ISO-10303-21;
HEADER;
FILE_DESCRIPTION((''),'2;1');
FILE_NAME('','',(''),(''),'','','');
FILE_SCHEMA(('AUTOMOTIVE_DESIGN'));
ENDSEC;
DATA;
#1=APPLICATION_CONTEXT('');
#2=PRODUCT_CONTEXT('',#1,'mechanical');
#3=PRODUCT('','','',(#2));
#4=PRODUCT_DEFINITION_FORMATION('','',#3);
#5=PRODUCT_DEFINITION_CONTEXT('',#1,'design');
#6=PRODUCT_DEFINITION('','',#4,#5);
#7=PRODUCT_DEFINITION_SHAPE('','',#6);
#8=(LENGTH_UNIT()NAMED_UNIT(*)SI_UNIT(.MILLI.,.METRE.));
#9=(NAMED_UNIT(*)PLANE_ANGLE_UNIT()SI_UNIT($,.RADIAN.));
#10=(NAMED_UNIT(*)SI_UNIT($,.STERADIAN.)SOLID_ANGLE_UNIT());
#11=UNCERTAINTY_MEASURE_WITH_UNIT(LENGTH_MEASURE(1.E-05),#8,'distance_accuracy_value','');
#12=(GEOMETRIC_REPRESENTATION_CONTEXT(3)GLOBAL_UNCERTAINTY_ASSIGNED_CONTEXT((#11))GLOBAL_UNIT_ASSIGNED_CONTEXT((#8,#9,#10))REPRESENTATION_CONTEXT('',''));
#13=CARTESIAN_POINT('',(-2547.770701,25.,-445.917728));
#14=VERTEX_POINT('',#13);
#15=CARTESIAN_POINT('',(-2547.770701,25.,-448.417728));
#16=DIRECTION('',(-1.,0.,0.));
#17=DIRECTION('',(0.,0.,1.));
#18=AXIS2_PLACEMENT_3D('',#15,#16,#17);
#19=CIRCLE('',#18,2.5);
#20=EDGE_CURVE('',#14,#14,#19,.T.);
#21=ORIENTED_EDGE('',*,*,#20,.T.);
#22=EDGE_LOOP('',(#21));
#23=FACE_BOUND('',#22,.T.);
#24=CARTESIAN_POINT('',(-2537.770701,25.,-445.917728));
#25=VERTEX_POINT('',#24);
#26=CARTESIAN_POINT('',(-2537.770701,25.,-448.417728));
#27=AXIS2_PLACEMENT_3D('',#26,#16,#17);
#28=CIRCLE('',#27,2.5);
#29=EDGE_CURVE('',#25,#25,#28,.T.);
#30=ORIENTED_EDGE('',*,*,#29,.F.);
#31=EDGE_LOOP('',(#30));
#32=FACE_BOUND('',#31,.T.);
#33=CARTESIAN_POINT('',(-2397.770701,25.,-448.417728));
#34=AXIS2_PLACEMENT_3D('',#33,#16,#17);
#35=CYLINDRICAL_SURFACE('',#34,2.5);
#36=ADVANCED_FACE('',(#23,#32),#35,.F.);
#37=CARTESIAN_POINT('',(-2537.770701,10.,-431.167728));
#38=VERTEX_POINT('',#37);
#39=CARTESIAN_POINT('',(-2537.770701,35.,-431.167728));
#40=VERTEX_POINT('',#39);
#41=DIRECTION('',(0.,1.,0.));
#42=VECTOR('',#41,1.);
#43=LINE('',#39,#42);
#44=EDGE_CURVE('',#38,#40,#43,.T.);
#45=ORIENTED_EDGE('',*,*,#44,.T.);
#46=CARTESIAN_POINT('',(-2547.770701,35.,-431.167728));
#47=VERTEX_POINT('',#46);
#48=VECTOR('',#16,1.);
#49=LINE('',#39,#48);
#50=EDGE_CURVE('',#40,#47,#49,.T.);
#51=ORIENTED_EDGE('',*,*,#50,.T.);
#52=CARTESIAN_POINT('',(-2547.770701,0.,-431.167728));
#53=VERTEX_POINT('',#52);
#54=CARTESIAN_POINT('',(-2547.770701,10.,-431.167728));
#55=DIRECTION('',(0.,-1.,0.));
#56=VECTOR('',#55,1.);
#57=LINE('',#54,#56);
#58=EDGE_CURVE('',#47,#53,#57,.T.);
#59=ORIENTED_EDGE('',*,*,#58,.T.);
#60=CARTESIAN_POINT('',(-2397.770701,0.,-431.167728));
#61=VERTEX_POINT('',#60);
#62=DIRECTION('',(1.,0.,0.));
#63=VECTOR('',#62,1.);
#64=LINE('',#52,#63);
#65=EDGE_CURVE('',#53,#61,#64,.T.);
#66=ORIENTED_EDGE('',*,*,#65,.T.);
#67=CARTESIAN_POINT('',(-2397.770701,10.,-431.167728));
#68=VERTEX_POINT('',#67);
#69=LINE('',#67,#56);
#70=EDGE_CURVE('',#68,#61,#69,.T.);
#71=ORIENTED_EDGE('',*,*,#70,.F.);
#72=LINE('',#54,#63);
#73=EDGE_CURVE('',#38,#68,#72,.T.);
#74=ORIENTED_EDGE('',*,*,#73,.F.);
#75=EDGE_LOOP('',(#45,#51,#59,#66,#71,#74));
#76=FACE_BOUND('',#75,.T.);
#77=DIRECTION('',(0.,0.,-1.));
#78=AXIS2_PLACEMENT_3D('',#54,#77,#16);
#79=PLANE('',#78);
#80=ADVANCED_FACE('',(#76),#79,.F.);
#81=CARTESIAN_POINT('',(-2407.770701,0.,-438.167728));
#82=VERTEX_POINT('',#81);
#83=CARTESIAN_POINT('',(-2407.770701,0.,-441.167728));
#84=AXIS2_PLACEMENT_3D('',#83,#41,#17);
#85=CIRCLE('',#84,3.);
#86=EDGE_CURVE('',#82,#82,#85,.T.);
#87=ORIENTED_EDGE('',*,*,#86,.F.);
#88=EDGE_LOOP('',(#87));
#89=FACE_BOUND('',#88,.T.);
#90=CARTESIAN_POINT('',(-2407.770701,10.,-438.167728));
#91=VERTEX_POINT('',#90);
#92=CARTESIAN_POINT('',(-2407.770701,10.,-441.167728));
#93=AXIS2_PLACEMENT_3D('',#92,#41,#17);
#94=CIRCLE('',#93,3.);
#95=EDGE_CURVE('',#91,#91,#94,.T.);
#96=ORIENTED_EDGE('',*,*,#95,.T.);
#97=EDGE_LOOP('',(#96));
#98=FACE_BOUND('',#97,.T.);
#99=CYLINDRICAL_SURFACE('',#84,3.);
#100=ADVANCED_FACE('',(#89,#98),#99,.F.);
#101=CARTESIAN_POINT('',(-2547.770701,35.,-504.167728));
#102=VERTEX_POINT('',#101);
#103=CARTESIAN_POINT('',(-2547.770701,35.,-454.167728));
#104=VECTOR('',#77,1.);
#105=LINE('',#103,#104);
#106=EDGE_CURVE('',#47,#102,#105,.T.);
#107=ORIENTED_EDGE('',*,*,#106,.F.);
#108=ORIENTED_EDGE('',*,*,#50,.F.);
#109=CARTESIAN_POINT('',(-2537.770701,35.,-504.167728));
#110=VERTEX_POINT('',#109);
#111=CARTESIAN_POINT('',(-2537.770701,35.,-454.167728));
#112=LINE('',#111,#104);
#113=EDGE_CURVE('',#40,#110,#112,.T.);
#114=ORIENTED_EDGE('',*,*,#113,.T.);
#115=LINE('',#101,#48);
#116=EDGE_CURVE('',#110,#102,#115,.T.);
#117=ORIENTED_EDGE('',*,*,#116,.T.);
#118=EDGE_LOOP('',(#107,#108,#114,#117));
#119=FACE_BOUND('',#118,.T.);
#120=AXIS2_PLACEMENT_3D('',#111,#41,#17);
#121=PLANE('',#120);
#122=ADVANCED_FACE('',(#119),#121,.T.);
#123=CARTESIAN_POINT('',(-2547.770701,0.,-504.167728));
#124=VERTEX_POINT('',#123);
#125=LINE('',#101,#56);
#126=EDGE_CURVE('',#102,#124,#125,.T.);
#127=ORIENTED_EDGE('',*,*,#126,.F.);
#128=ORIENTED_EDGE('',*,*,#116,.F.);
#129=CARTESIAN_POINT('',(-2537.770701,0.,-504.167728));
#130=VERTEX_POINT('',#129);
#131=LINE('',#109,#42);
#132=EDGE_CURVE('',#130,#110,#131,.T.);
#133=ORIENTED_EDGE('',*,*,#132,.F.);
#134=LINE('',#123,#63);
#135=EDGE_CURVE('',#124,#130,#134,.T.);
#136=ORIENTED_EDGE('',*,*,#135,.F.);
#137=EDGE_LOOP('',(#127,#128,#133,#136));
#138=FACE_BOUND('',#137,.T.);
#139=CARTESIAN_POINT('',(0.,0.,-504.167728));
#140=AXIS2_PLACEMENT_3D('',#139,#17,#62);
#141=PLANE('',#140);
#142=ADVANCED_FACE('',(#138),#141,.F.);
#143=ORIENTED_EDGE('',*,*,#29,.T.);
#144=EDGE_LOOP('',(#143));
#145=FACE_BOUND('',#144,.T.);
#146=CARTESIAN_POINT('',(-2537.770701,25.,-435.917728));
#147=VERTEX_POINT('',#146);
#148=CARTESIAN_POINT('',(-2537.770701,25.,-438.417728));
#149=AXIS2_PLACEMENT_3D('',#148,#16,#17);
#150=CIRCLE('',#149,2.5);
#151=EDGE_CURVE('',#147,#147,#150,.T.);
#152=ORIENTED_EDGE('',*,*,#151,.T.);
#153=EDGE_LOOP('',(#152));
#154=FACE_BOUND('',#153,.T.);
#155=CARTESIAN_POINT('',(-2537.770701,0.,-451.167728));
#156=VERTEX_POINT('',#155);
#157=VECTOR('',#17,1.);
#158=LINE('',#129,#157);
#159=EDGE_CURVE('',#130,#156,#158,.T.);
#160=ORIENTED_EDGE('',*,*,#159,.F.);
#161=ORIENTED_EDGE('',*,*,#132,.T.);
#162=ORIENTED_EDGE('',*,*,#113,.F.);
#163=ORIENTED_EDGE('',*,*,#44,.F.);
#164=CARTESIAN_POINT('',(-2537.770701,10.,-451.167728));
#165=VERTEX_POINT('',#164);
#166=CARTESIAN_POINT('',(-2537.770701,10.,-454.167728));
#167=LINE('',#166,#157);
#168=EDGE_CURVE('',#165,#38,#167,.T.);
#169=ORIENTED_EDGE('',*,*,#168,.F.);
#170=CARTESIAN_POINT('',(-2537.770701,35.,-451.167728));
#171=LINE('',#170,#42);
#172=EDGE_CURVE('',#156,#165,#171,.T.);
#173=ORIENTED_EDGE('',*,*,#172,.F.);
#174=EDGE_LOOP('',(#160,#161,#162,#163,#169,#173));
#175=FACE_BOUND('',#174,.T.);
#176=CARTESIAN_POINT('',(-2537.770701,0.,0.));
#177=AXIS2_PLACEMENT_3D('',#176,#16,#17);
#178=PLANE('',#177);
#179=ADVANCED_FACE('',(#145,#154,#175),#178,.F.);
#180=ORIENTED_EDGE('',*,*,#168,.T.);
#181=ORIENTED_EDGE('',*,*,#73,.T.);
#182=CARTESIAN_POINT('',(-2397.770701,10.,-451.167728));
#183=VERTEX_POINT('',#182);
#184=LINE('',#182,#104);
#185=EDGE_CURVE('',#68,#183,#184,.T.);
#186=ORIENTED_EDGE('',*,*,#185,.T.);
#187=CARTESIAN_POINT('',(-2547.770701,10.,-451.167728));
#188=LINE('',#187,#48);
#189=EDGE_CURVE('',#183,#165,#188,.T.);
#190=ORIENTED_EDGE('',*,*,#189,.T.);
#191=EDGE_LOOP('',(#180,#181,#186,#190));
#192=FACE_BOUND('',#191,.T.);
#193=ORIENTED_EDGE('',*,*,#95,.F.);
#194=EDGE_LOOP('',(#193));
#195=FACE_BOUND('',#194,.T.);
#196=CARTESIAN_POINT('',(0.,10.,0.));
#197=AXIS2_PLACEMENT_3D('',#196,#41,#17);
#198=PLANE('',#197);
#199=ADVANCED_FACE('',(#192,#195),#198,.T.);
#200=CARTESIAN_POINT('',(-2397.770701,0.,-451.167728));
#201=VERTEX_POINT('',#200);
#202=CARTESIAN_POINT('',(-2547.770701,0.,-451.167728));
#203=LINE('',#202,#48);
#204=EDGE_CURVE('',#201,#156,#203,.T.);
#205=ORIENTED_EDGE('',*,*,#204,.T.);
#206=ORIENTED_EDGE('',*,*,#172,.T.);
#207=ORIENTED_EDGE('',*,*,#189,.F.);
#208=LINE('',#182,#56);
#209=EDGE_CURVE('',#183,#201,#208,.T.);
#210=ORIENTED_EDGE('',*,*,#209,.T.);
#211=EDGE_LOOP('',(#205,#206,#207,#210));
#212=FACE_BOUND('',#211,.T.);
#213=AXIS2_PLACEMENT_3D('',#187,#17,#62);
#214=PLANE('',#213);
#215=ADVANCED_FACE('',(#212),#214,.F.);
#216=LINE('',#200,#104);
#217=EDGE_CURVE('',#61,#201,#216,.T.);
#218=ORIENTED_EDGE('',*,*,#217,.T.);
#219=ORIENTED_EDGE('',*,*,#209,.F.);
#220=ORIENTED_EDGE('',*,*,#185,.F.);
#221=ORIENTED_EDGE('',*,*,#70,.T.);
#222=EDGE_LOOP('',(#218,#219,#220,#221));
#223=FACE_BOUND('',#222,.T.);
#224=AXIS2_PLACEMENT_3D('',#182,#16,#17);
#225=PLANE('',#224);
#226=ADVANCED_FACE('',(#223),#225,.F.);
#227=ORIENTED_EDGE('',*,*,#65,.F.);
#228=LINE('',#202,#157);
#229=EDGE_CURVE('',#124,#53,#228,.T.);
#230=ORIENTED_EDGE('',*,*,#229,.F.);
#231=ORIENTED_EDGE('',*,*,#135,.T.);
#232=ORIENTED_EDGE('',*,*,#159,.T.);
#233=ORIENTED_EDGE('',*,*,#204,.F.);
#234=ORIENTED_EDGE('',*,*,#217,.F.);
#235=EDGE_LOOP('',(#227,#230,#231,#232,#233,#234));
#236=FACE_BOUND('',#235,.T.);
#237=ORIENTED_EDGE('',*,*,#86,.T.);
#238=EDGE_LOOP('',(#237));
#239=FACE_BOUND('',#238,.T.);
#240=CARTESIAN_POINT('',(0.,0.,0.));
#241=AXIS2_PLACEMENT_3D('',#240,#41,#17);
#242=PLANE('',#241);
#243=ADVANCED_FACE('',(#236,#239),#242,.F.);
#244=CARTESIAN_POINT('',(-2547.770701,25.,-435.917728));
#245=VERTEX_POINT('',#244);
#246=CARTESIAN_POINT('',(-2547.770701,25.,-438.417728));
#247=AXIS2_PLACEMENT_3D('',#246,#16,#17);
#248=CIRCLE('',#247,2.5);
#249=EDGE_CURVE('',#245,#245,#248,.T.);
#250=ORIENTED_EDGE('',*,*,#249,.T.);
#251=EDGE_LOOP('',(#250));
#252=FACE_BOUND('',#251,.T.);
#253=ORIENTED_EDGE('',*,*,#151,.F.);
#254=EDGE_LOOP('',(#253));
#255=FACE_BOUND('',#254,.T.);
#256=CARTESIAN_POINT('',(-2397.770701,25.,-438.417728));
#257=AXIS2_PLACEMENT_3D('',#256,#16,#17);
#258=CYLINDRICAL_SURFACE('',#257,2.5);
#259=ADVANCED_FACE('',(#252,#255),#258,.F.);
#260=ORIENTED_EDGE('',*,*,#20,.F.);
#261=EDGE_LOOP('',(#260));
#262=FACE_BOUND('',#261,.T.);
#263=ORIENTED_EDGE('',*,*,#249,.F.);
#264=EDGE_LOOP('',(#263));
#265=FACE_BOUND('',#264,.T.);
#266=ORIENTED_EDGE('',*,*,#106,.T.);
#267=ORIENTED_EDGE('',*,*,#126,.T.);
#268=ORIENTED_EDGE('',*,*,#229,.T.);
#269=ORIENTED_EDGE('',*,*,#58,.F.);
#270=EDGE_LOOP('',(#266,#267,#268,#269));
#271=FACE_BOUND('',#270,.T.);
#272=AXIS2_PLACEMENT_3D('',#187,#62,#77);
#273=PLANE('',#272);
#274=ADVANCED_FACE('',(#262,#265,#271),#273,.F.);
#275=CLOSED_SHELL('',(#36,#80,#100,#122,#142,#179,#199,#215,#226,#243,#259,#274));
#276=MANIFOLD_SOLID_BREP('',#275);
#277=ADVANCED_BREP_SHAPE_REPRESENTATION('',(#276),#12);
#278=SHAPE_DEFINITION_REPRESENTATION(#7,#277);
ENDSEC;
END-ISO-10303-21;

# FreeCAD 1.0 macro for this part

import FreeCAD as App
import Part
import Sketcher
from FreeCAD import Vector
Q = App.Units.Quantity


def add_polygon(sketch, points):
    """Adds a closed chain of lines whose ends are joined by coincident constraints."""
    first, n = sketch.GeometryCount, len(points)
    for a, b in zip(points, points[1:] + points[:1]):
        sketch.addGeometry(Part.LineSegment(App.Vector(*a, 0), App.Vector(*b, 0)), False)
    for i in range(n):
        sketch.addConstraint(Sketcher.Constraint("Coincident", first + i, 2, first + (i + 1) % n, 1))

doc = App.newDocument("Part")
body = doc.addObject("PartDesign::Body", "Body")

# Sketch on XZ plane
sketch1 = doc.addObject("Sketcher::SketchObject", "Sketch")
body.addObject(sketch1)
sketch1.AttachmentSupport = (doc.XZ_Plane, [""])
sketch1.MapMode = "FlatFace"
add_polygon(sketch1, [(-2547.770701, -451.167728), (-2547.770701, -431.167728), (-2397.770701, -431.167728), (-2397.770701, -451.167728)])  # lines 0-3
sketch1.addConstraint([
    Sketcher.Constraint("Vertical", 0),
    Sketcher.Constraint("Horizontal", 1),
    Sketcher.Constraint("Vertical", 2),
    Sketcher.Constraint("Horizontal", 3),
    Sketcher.Constraint("DistanceX", 1, 1, 1, 2, Q("150 mm")),
    Sketcher.Constraint("DistanceY", 0, 1, 0, 2, Q("20 mm")),
    Sketcher.Constraint("DistanceX", 0, 2, -1, 1, Q("2547.770701 mm")),
    Sketcher.Constraint("DistanceY", 0, 2, -1, 1, Q("431.167728 mm")),
])
pad1 = doc.addObject("PartDesign::Pad", "Pad")
body.addObject(pad1)
pad1.Profile = sketch1
pad1.Length = 10
pad1.Reversed = True

# Sketch on XZ plane
sketch2 = doc.addObject("Sketcher::SketchObject", "Sketch001")
body.addObject(sketch2)
sketch2.AttachmentSupport = (doc.XZ_Plane, [""])
sketch2.MapMode = "FlatFace"
sketch2.AttachmentOffset = App.Placement(Vector(0, 0, -10), App.Rotation())
sketch2.addGeometry(Part.Circle(Vector(-2407.770701, -441.167728, 0), Vector(0, 0, 1), 3), False)
sketch2.addConstraint([
    Sketcher.Constraint("Diameter", 0, Q("6 mm")),
    Sketcher.Constraint("DistanceX", 0, 3, -1, 1, Q("2407.770701 mm")),
    Sketcher.Constraint("DistanceY", 0, 3, -1, 1, Q("441.167728 mm")),
])
pocket1 = doc.addObject("PartDesign::Pocket", "Pocket")
body.addObject(pocket1)
pocket1.Profile = sketch2
pocket1.Length = 10
pocket1.Reversed = True

# Sketch on YZ plane
sketch3 = doc.addObject("Sketcher::SketchObject", "Sketch002")
body.addObject(sketch3)
sketch3.AttachmentSupport = (doc.YZ_Plane, [""])
sketch3.MapMode = "FlatFace"
sketch3.AttachmentOffset = App.Placement(Vector(0, 0, -2547.770701), App.Rotation())
add_polygon(sketch3, [(35, -454.167728), (10, -454.167728), (10, -431.167728), (35, -431.167728)])  # lines 0-3
sketch3.addConstraint([
    Sketcher.Constraint("Horizontal", 0),
    Sketcher.Constraint("Vertical", 1),
    Sketcher.Constraint("Horizontal", 2),
    Sketcher.Constraint("Vertical", 3),
    Sketcher.Constraint("DistanceX", 0, 2, 0, 1, Q("25 mm")),
    Sketcher.Constraint("DistanceY", 1, 1, 1, 2, Q("23 mm")),
    Sketcher.Constraint("DistanceX", -1, 1, 0, 2, Q("10 mm")),
    Sketcher.Constraint("DistanceY", 0, 2, -1, 1, Q("454.167728 mm")),
])
pad2 = doc.addObject("PartDesign::Pad", "Pad001")
body.addObject(pad2)
pad2.Profile = sketch3
pad2.Length = 10

# Sketch on YZ plane
sketch4 = doc.addObject("Sketcher::SketchObject", "Sketch003")
body.addObject(sketch4)
sketch4.AttachmentSupport = (doc.YZ_Plane, [""])
sketch4.MapMode = "FlatFace"
sketch4.AttachmentOffset = App.Placement(Vector(0, 0, -2547.770701), App.Rotation())
sketch4.addGeometry([
    Part.Circle(Vector(25, -448.417728, 0), Vector(0, 0, 1), 2.5),
    Part.Circle(Vector(25, -438.417728, 0), Vector(0, 0, 1), 2.5),
], False)
sketch4.addConstraint([
    Sketcher.Constraint("Equal", 0, 1),
    Sketcher.Constraint("Vertical", 0, 3, 1, 3),
    Sketcher.Constraint("Diameter", 0, Q("5 mm")),
    Sketcher.Constraint("DistanceX", -1, 1, 0, 3, Q("25 mm")),
    Sketcher.Constraint("DistanceY", 0, 3, 1, 3, Q("10 mm")),
    Sketcher.Constraint("DistanceY", 0, 3, -1, 1, Q("448.417728 mm")),
])
pocket2 = doc.addObject("PartDesign::Pocket", "Pocket001")
body.addObject(pocket2)
pocket2.Profile = sketch4
pocket2.Type = "ThroughAll"
pocket2.Reversed = True

# Sketch on XY plane
sketch5 = doc.addObject("Sketcher::SketchObject", "Sketch004")
body.addObject(sketch5)
sketch5.AttachmentSupport = (doc.XY_Plane, [""])
sketch5.MapMode = "FlatFace"
sketch5.AttachmentOffset = App.Placement(Vector(0, 0, -451.167728), App.Rotation())
add_polygon(sketch5, [(-2547.770701, 35), (-2547.770701, 0), (-2537.770701, 0), (-2537.770701, 35)])  # lines 0-3
sketch5.addConstraint([
    Sketcher.Constraint("Vertical", 0),
    Sketcher.Constraint("Horizontal", 1),
    Sketcher.Constraint("Vertical", 2),
    Sketcher.Constraint("Horizontal", 3),
    Sketcher.Constraint("PointOnObject", 0, 2, -1),
    Sketcher.Constraint("DistanceX", 1, 1, 1, 2, Q("10 mm")),
    Sketcher.Constraint("DistanceY", 0, 2, 0, 1, Q("35 mm")),
    Sketcher.Constraint("DistanceX", 0, 2, -1, 1, Q("2547.770701 mm")),
])
pad3 = doc.addObject("PartDesign::Pad", "Pad002")
body.addObject(pad3)
pad3.Profile = sketch5
pad3.Length = 53
pad3.Reversed = True

doc.recompute()
